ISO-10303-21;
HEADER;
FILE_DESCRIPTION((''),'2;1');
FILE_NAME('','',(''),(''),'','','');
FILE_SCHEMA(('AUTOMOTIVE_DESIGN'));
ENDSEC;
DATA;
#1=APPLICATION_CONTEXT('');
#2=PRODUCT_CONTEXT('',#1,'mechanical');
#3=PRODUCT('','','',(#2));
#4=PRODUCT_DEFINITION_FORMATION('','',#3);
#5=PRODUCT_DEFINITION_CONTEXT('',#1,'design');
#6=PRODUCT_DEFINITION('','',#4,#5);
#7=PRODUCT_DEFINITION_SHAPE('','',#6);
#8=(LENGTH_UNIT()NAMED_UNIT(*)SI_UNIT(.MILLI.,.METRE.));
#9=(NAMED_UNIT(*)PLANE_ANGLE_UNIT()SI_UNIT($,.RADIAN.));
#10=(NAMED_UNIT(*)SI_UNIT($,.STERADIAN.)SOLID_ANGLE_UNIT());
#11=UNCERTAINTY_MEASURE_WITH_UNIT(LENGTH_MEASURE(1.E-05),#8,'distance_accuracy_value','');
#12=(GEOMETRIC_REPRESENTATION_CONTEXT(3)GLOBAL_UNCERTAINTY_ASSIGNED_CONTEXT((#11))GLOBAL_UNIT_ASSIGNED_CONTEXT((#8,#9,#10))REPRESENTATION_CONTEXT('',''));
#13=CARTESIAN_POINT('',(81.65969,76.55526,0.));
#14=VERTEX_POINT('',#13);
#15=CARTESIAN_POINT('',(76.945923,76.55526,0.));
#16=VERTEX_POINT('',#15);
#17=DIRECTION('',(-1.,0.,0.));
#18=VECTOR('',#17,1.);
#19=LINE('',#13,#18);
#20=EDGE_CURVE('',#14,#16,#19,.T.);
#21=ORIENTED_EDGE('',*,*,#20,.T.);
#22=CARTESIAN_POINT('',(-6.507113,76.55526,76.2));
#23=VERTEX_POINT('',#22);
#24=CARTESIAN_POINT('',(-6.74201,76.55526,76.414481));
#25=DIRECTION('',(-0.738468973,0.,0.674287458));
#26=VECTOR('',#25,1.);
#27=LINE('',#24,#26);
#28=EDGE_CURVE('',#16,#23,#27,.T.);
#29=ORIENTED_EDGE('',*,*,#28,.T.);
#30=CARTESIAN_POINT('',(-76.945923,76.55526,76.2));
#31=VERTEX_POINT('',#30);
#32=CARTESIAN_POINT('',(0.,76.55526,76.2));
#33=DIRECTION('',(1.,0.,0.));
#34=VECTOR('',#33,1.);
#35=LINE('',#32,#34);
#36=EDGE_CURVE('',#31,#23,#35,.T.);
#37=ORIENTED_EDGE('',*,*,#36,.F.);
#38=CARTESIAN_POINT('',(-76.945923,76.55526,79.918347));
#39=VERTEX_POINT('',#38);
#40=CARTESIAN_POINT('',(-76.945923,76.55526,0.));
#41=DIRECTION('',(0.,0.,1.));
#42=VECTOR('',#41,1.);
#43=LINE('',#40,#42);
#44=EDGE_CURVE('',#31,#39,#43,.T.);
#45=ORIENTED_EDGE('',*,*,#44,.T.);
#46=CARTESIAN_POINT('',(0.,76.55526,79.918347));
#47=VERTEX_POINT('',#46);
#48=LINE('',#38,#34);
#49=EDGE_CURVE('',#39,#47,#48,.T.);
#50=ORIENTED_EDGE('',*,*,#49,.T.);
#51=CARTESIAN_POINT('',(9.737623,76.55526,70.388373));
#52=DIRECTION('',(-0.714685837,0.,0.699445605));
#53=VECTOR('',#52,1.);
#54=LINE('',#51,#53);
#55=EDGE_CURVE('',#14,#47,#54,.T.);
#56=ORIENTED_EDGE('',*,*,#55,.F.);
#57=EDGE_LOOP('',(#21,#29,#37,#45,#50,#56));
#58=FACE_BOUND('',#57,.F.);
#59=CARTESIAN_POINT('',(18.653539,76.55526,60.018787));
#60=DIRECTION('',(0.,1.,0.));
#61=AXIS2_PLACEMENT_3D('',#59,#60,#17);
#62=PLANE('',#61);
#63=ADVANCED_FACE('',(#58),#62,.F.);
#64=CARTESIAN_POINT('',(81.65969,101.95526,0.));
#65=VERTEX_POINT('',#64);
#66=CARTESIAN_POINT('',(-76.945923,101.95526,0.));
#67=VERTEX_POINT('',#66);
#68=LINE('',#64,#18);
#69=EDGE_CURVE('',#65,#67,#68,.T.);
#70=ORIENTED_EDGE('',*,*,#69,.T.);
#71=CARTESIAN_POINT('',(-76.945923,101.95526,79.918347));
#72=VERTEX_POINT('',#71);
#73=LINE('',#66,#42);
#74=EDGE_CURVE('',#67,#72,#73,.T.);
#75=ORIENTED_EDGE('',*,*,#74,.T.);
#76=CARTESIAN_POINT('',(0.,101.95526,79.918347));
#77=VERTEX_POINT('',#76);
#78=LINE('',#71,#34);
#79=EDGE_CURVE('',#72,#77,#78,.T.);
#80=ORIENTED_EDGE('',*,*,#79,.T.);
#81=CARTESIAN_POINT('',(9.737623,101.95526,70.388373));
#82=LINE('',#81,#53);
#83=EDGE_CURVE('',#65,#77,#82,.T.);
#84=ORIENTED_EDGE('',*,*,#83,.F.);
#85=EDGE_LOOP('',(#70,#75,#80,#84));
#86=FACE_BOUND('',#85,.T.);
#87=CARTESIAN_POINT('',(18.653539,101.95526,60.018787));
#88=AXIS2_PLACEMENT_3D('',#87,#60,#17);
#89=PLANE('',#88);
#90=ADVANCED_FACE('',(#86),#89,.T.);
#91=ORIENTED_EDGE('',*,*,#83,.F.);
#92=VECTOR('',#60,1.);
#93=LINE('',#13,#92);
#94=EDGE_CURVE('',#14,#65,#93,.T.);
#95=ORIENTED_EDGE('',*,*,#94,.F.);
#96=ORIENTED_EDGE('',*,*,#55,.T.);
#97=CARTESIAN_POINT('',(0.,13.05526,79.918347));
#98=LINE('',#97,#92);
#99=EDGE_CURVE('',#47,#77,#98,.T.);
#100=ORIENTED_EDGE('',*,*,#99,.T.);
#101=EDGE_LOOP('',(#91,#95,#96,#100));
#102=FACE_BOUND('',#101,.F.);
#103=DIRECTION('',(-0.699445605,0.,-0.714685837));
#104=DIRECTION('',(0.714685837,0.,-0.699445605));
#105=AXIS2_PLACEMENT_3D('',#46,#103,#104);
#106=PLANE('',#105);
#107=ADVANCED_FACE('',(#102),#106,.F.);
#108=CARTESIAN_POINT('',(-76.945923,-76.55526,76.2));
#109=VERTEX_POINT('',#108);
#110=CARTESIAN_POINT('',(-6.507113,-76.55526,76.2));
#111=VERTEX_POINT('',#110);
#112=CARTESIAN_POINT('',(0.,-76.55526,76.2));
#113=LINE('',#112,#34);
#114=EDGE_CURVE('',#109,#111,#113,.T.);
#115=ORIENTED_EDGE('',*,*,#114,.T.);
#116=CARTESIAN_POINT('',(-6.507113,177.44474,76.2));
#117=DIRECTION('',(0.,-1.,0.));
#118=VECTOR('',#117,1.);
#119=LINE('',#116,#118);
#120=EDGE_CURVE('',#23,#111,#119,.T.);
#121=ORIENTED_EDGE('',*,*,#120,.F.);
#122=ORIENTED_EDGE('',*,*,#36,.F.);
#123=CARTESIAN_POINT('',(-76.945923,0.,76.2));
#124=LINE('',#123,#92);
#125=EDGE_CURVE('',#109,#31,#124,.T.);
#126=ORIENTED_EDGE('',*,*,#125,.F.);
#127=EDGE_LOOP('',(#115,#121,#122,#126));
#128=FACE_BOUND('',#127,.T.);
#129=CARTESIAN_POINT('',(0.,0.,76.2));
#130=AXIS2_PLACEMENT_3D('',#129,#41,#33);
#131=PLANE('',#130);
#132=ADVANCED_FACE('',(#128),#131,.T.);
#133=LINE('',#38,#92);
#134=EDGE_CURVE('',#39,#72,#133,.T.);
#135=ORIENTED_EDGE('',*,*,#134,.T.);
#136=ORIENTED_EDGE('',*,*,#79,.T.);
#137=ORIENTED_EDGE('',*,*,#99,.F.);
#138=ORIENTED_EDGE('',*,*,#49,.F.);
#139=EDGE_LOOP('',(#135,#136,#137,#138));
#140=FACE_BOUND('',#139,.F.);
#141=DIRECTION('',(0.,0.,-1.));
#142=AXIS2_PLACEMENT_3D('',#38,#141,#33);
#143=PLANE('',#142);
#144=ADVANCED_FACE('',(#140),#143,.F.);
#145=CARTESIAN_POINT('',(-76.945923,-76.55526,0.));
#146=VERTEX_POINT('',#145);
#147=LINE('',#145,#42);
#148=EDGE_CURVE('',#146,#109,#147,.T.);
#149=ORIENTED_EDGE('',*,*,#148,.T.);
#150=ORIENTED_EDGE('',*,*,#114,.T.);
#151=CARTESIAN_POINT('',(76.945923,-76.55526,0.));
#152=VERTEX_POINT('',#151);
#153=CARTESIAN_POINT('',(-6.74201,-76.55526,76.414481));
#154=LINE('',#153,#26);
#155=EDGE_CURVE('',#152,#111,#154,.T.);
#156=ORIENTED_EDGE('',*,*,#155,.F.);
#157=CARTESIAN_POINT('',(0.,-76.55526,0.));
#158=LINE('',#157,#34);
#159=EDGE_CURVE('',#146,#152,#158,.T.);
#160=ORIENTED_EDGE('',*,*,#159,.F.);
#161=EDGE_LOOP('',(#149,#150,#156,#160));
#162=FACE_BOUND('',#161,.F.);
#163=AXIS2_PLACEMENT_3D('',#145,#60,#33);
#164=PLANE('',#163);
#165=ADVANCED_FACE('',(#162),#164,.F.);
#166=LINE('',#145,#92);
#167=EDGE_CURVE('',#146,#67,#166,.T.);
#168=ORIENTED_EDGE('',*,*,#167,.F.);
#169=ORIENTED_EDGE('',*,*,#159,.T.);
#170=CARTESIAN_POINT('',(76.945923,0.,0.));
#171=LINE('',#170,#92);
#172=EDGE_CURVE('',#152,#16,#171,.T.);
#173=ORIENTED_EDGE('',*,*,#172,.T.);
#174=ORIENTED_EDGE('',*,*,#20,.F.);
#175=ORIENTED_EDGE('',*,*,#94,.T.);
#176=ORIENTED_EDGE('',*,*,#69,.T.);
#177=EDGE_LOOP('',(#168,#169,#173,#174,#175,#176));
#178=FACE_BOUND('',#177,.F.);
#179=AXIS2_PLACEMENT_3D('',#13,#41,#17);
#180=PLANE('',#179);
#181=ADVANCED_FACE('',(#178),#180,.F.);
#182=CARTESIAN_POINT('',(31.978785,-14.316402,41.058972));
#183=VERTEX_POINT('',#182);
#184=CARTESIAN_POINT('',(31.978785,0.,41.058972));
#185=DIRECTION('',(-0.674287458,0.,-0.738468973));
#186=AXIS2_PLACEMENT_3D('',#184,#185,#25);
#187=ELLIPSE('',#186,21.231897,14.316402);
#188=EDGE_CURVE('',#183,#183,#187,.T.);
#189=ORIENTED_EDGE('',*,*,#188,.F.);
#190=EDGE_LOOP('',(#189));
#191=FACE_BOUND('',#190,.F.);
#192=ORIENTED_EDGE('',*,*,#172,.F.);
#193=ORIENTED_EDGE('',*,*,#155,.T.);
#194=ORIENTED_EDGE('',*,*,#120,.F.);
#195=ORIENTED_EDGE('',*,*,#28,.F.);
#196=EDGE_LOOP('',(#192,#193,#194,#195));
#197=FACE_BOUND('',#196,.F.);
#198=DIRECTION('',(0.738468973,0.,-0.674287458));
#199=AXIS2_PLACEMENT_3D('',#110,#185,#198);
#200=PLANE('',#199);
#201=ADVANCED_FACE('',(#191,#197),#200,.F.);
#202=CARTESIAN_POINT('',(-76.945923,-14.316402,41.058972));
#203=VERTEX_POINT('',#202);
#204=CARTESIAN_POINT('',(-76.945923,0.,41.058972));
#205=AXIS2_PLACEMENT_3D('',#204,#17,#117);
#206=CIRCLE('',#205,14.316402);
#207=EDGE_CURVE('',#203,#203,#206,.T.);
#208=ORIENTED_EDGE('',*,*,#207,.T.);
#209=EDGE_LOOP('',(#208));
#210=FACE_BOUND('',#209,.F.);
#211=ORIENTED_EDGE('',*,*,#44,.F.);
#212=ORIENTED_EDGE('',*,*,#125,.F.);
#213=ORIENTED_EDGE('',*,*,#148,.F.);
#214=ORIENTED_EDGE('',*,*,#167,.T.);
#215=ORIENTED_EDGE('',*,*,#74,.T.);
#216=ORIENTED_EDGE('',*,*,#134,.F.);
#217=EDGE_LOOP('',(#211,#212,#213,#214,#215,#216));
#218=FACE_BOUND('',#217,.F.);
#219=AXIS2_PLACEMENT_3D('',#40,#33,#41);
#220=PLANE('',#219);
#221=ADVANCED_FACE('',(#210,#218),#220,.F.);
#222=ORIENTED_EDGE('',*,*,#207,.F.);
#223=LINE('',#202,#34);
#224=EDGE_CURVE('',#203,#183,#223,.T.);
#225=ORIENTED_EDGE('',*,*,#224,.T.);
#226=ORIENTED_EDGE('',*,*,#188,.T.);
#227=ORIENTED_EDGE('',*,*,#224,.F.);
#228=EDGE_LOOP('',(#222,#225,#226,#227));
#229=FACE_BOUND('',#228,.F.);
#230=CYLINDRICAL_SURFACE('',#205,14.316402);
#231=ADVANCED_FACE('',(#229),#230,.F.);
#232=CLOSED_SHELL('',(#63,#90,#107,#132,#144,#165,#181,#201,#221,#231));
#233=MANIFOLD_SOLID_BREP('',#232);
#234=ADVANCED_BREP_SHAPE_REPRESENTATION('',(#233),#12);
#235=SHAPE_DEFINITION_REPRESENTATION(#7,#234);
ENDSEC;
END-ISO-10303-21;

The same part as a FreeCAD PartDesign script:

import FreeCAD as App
import Part
import Sketcher
from FreeCAD import Vector
Q = App.Units.Quantity

doc = App.newDocument("Part")
body = doc.addObject("PartDesign::Body", "Body")

sketch1 = body.newObject("Sketcher::SketchObject", "Sketch")
sketch1.AttachmentSupport = (doc.getObject("XY_Plane"), [""])
sketch1.MapMode = "FlatFace"
sketch1.addGeometry([
    Part.LineSegment(Vector(-77, 77, 0), Vector(-77, -77, 0)),
    Part.LineSegment(Vector(-77, -77, 0), Vector(77, -77, 0)),
    Part.LineSegment(Vector(77, -77, 0), Vector(77, 77, 0)),
    Part.LineSegment(Vector(77, 77, 0), Vector(-77, 77, 0)),
], False)
sketch1.addConstraint([
    Sketcher.Constraint("Coincident", 0, 2, 1, 1),
    Sketcher.Constraint("Coincident", 1, 2, 2, 1),
    Sketcher.Constraint("Coincident", 2, 2, 3, 1),
    Sketcher.Constraint("Coincident", 3, 2, 0, 1),
    Sketcher.Constraint("Vertical", 0),
    Sketcher.Constraint("Horizontal", 1),
    Sketcher.Constraint("Vertical", 2),
    Sketcher.Constraint("Horizontal", 3),
    Sketcher.Constraint("Symmetric", 0, 2, 2, 2, -1, 1),
    Sketcher.Constraint("DistanceY", 0, 2, 0, 1, 153.110519),
    Sketcher.Constraint("DistanceX", 1, 1, 1, 2, 153.891847),
])
pad1 = body.newObject("PartDesign::Pad", "Pad")
pad1.Profile = sketch1
pad1.Length = Q("3 in")

sketch2 = body.newObject("Sketcher::SketchObject", "Sketch001")
sketch2.AttachmentSupport = (doc.getObject("XZ_Plane"), [""])
sketch2.MapMode = "FlatFace"
sketch2.AttachmentOffset = App.Placement(Vector(0, 0, 76.55526), App.Rotation())
sketch2.addGeometry([
    Part.LineSegment(Vector(77, 76, 0), Vector(-7, 76, 0)),
    Part.LineSegment(Vector(-7, 76, 0), Vector(77, 0, 0)),
    Part.LineSegment(Vector(77, 0, 0), Vector(77, 76, 0)),
], False)
sketch2.addConstraint([
    Sketcher.Constraint("Coincident", 0, 2, 1, 1),
    Sketcher.Constraint("Coincident", 1, 2, 2, 1),
    Sketcher.Constraint("Coincident", 2, 2, 0, 1),
    Sketcher.Constraint("Horizontal", 0),
    Sketcher.Constraint("Vertical", 2),
    Sketcher.Constraint("PointOnObject", 1, 2, -1),
    Sketcher.Constraint("DistanceY", 2, 1, 2, 2, Q("3 in")),
    Sketcher.Constraint("DistanceX", 0, 2, 0, 1, 83.453036),
    Sketcher.Constraint("DistanceX", 0, 2, -1, 1, 6.507113),
])
pocket1 = body.newObject("PartDesign::Pocket", "Pocket")
pocket1.Profile = sketch2
pocket1.Length = Q("20 in")
pocket1.Midplane = True

sketch3 = body.newObject("Sketcher::SketchObject", "Sketch002")
sketch3.AttachmentSupport = (doc.getObject("YZ_Plane"), [""])
sketch3.MapMode = "FlatFace"
sketch3.AttachmentOffset = App.Placement(Vector(0, 0, -76.945923), App.Rotation())
sketch3.addGeometry(Part.Circle(Vector(0, 41, 0), Vector(0, 0, 1), 14), False)
sketch3.addConstraint([
    Sketcher.Constraint("PointOnObject", 0, 3, -2),
    Sketcher.Constraint("Diameter", 0, 28.632804),
    Sketcher.Constraint("DistanceY", -1, 1, 0, 3, 41.058972),
])
pocket2 = body.newObject("PartDesign::Pocket", "Pocket001")
pocket2.Profile = sketch3
pocket2.Length = Q("20 in")
pocket2.Reversed = True

sketch4 = body.newObject("Sketcher::SketchObject", "Sketch003")
sketch4.AttachmentSupport = (doc.getObject("XZ_Plane"), [""])
sketch4.MapMode = "FlatFace"
sketch4.AttachmentOffset = App.Placement(Vector(0, 0, -76.55526), App.Rotation())
sketch4.addGeometry([
    Part.LineSegment(Vector(82, 0, 0), Vector(-77, 0, 0)),
    Part.LineSegment(Vector(-77, 0, 0), Vector(-77, 80, 0)),
    Part.LineSegment(Vector(-77, 80, 0), Vector(82, 80, 0)),
    Part.LineSegment(Vector(82, 80, 0), Vector(82, 0, 0)),
], False)
sketch4.addConstraint([
    Sketcher.Constraint("Coincident", 0, 2, 1, 1),
    Sketcher.Constraint("Coincident", 1, 2, 2, 1),
    Sketcher.Constraint("Coincident", 2, 2, 3, 1),
    Sketcher.Constraint("Coincident", 3, 2, 0, 1),
    Sketcher.Constraint("Horizontal", 0),
    Sketcher.Constraint("Vertical", 1),
    Sketcher.Constraint("Horizontal", 2),
    Sketcher.Constraint("Vertical", 3),
    Sketcher.Constraint("PointOnObject", 0, 2, -1),
    Sketcher.Constraint("DistanceX", 0, 2, 0, 1, 158.605613),
    Sketcher.Constraint("DistanceY", 1, 1, 1, 2, 79.918347),
    Sketcher.Constraint("DistanceX", -1, 1, 2, 2, 81.65969),
])
pad2 = body.newObject("PartDesign::Pad", "Pad001")
pad2.Profile = sketch4
pad2.Length = Q("1 in")
pad2.Reversed = True

sketch5 = body.newObject("Sketcher::SketchObject", "Sketch004")
sketch5.AttachmentSupport = (doc.getObject("XZ_Plane"), [""])
sketch5.MapMode = "FlatFace"
sketch5.AttachmentOffset = App.Placement(Vector(0, 0, -76.55526), App.Rotation())
sketch5.addGeometry([
    Part.LineSegment(Vector(0, 80, 0), Vector(82, 0, 0)),
    Part.LineSegment(Vector(82, 0, 0), Vector(82, 80, 0)),
    Part.LineSegment(Vector(82, 80, 0), Vector(0, 80, 0)),
], False)
sketch5.addConstraint([
    Sketcher.Constraint("Coincident", 0, 2, 1, 1),
    Sketcher.Constraint("Coincident", 1, 2, 2, 1),
    Sketcher.Constraint("Coincident", 2, 2, 0, 1),
    Sketcher.Constraint("Vertical", 1),
    Sketcher.Constraint("Horizontal", 2),
    Sketcher.Constraint("PointOnObject", 0, 2, -1),
    Sketcher.Constraint("PointOnObject", 2, 2, -2),
    Sketcher.Constraint("DistanceX", 2, 2, 2, 1, 81.65969),
    Sketcher.Constraint("Distance", 0, 114.25956),
])
pocket3 = body.newObject("PartDesign::Pocket", "Pocket002")
pocket3.Profile = sketch5
pocket3.Length = Q("5 in")
pocket3.Midplane = True

doc.recompute()
